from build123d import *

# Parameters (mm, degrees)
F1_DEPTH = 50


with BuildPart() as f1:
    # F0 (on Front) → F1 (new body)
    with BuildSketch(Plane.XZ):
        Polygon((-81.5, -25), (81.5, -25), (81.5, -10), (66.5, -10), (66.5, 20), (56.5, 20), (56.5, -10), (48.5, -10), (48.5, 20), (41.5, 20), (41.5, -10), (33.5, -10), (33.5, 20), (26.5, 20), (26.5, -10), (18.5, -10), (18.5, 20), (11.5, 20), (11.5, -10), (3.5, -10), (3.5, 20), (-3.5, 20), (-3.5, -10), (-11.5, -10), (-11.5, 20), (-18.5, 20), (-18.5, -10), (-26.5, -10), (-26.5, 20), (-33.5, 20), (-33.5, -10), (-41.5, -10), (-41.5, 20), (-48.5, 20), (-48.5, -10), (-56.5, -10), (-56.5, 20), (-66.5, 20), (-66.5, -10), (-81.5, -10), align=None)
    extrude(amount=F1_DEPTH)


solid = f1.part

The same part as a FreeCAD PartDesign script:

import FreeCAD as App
import Part
import Sketcher


def add_polygon(sketch, points):
    """Adds a closed chain of lines whose ends are joined by coincident constraints."""
    first, n = sketch.GeometryCount, len(points)
    for a, b in zip(points, points[1:] + points[:1]):
        sketch.addGeometry(Part.LineSegment(App.Vector(*a, 0), App.Vector(*b, 0)), False)
    for i in range(n):
        sketch.addConstraint(Sketcher.Constraint("Coincident", first + i, 2, first + (i + 1) % n, 1))

doc = App.newDocument("Part")
params = doc.addObject("Spreadsheet::Sheet", "Params")
for row, (alias, value) in enumerate([
    ("sketch1_width", "163 mm"),
    ("sketch1_width2", "15 mm"),
    ("sketch1_width3", "10 mm"),
    ("sketch1_width4", "8 mm"),
    ("sketch1_height", "30 mm"),
    ("pad1_length", "50 mm"),
], start=1):
    params.set(f"A{row}", alias)
    params.set(f"B{row}", "=" + value)
    params.setAlias(f"B{row}", alias)

body = doc.addObject("PartDesign::Body", "Body")

# Sketch on XZ plane
sketch1 = body.newObject("Sketcher::SketchObject", "Sketch")
sketch1.AttachmentSupport = (doc.getObject("XZ_Plane"), [""])
sketch1.MapMode = "FlatFace"
add_polygon(sketch1, [(-82, -25), (82, -25), (82, -10), (66, -10), (66, 20), (56, 20), (56, -10), (48, -10), (48, 20), (42, 20), (42, -10), (34, -10), (34, 20), (26, 20), (26, -10), (18, -10), (18, 20), (12, 20), (12, -10), (4, -10), (4, 20), (-4, 20), (-4, -10), (-12, -10), (-12, 20), (-18, 20), (-18, -10), (-26, -10), (-26, 20), (-34, 20), (-34, -10), (-42, -10), (-42, 20), (-48, 20), (-48, -10), (-56, -10), (-56, 20), (-66, 20), (-66, -10), (-82, -10)])  # lines 0-39
sketch1.addConstraint(Sketcher.Constraint("Horizontal", 0))
sketch1.addConstraint(Sketcher.Constraint("Vertical", 1))
sketch1.addConstraint(Sketcher.Constraint("Horizontal", 2))
sketch1.addConstraint(Sketcher.Constraint("Vertical", 3))
sketch1.addConstraint(Sketcher.Constraint("Horizontal", 4))
sketch1.addConstraint(Sketcher.Constraint("Vertical", 5))
sketch1.addConstraint(Sketcher.Constraint("Horizontal", 6))
sketch1.addConstraint(Sketcher.Constraint("Vertical", 7))
sketch1.addConstraint(Sketcher.Constraint("Horizontal", 8))
sketch1.addConstraint(Sketcher.Constraint("Vertical", 9))
sketch1.addConstraint(Sketcher.Constraint("Horizontal", 10))
sketch1.addConstraint(Sketcher.Constraint("Vertical", 11))
sketch1.addConstraint(Sketcher.Constraint("Horizontal", 12))
sketch1.addConstraint(Sketcher.Constraint("Vertical", 13))
sketch1.addConstraint(Sketcher.Constraint("Horizontal", 14))
sketch1.addConstraint(Sketcher.Constraint("Vertical", 15))
sketch1.addConstraint(Sketcher.Constraint("Horizontal", 16))
sketch1.addConstraint(Sketcher.Constraint("Vertical", 17))
sketch1.addConstraint(Sketcher.Constraint("Horizontal", 18))
sketch1.addConstraint(Sketcher.Constraint("Vertical", 19))
sketch1.addConstraint(Sketcher.Constraint("Horizontal", 20))
sketch1.addConstraint(Sketcher.Constraint("Vertical", 21))
sketch1.addConstraint(Sketcher.Constraint("Horizontal", 22))
sketch1.addConstraint(Sketcher.Constraint("Vertical", 23))
sketch1.addConstraint(Sketcher.Constraint("Horizontal", 24))
sketch1.addConstraint(Sketcher.Constraint("Vertical", 25))
sketch1.addConstraint(Sketcher.Constraint("Horizontal", 26))
sketch1.addConstraint(Sketcher.Constraint("Vertical", 27))
sketch1.addConstraint(Sketcher.Constraint("Horizontal", 28))
sketch1.addConstraint(Sketcher.Constraint("Vertical", 29))
sketch1.addConstraint(Sketcher.Constraint("Horizontal", 30))
sketch1.addConstraint(Sketcher.Constraint("Vertical", 31))
sketch1.addConstraint(Sketcher.Constraint("Horizontal", 32))
sketch1.addConstraint(Sketcher.Constraint("Vertical", 33))
sketch1.addConstraint(Sketcher.Constraint("Horizontal", 34))
sketch1.addConstraint(Sketcher.Constraint("Vertical", 35))
sketch1.addConstraint(Sketcher.Constraint("Horizontal", 36))
sketch1.addConstraint(Sketcher.Constraint("Vertical", 37))
sketch1.addConstraint(Sketcher.Constraint("Horizontal", 38))
sketch1.addConstraint(Sketcher.Constraint("Vertical", 39))
sketch1.addConstraint(Sketcher.Constraint("Symmetric", 18, 2, 21, 2, -2))
sketch1.addConstraint(Sketcher.Constraint("Symmetric", 16, 2, 23, 2, -2))
sketch1.addConstraint(Sketcher.Constraint("Symmetric", 14, 2, 25, 2, -2))
sketch1.addConstraint(Sketcher.Constraint("Symmetric", 12, 2, 27, 2, -2))
sketch1.addConstraint(Sketcher.Constraint("Symmetric", 10, 2, 29, 2, -2))
sketch1.addConstraint(Sketcher.Constraint("Symmetric", 8, 2, 31, 2, -2))
sketch1.addConstraint(Sketcher.Constraint("Symmetric", 6, 2, 33, 2, -2))
sketch1.addConstraint(Sketcher.Constraint("Symmetric", 4, 2, 35, 2, -2))
sketch1.addConstraint(Sketcher.Constraint("Symmetric", 2, 2, 37, 2, -2))
sketch1.addConstraint(Sketcher.Constraint("Horizontal", 2, 2, 5, 2))
sketch1.addConstraint(Sketcher.Constraint("Horizontal", 4, 2, 7, 2))
sketch1.addConstraint(Sketcher.Constraint("Horizontal", 6, 2, 9, 2))
sketch1.addConstraint(Sketcher.Constraint("Horizontal", 8, 2, 11, 2))
sketch1.addConstraint(Sketcher.Constraint("Horizontal", 10, 2, 13, 2))
sketch1.addConstraint(Sketcher.Constraint("Horizontal", 12, 2, 15, 2))
sketch1.addConstraint(Sketcher.Constraint("Horizontal", 14, 2, 17, 2))
sketch1.addConstraint(Sketcher.Constraint("Horizontal", 16, 2, 19, 2))
sketch1.addConstraint(Sketcher.Constraint("Equal", 6, 10))
sketch1.addConstraint(Sketcher.Constraint("Equal", 8, 12))
sketch1.addConstraint(Sketcher.Constraint("Equal", 10, 14))
sketch1.addConstraint(Sketcher.Constraint("Equal", 12, 16))
sketch1.addConstraint(Sketcher.Constraint("Equal", 14, 18))
sketch1.addConstraint(Sketcher.Constraint("Equal", 16, 20))
sketch1.addConstraint(Sketcher.Constraint("Equal", 2, 38))
sketch1.addConstraint(Sketcher.Constraint("Equal", 38, 1))
sketch1.addConstraint(Sketcher.Constraint("DistanceX", 0, 1, 0, 2, 163.0))
sketch1.addConstraint(Sketcher.Constraint("DistanceX", 2, 2, 2, 1, 15.0))
sketch1.addConstraint(Sketcher.Constraint("DistanceX", 4, 2, 4, 1, 10.0))
sketch1.addConstraint(Sketcher.Constraint("DistanceX", 6, 2, 6, 1, 8.0))
sketch1.addConstraint(Sketcher.Constraint("DistanceY", 3, 1, 3, 2, 30.0))
sketch1.addConstraint(Sketcher.Constraint("DistanceY", 0, 2, -1, 1, 25.0))
sketch1.setExpression("Constraints[105]", "Params.sketch1_width")
sketch1.setExpression("Constraints[106]", "Params.sketch1_width2")
sketch1.setExpression("Constraints[107]", "Params.sketch1_width3")
sketch1.setExpression("Constraints[108]", "Params.sketch1_width4")
sketch1.setExpression("Constraints[109]", "Params.sketch1_height")
pad1 = body.newObject("PartDesign::Pad", "Pad")
pad1.Profile = sketch1
pad1.setExpression("Length", "Params.pad1_length")

doc.recompute()
